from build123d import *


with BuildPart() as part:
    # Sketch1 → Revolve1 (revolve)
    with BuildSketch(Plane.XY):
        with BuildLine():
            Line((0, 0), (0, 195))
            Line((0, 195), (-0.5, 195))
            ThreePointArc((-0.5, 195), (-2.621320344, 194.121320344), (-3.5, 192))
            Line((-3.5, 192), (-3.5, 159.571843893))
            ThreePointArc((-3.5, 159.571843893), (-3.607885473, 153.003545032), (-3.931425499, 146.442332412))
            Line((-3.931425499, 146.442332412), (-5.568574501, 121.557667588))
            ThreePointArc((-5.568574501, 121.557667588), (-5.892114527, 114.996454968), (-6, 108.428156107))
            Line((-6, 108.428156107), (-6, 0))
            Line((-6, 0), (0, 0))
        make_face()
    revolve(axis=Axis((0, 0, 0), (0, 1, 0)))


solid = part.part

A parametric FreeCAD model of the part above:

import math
import FreeCAD as App
import Part
import Sketcher
from FreeCAD import Vector

doc = App.newDocument("Part")
body = doc.addObject("PartDesign::Body", "Body")

# Sketch on XY plane
sketch1 = body.newObject("Sketcher::SketchObject", "Sketch")
sketch1.AttachmentSupport = (doc.getObject("XY_Plane"), [""])
sketch1.MapMode = "FlatFace"
sketch1.addGeometry([
    Part.LineSegment(Vector(0, 0, 0), Vector(0, 195, 0)),  # 0
    Part.LineSegment(Vector(0, 195, 0), Vector(-0.5, 195, 0)),  # 1
    Part.ArcOfCircle(Part.Circle(Vector(-0.5, 192, 0), Vector(0, 0, 1), 3), math.radians(90), math.radians(180)),  # 2
    Part.LineSegment(Vector(-3.5, 192, 0), Vector(-3.5, 159.6, 0)),  # 3
    Part.ArcOfCircle(Part.Circle(Vector(-203.5, 159.6, 0), Vector(0, 0, 1), 200), math.radians(-3.76), math.radians(0)),  # 4
    Part.LineSegment(Vector(-3.9, 146.4, 0), Vector(-5.6, 121.6, 0)),  # 5
    Part.ArcOfCircle(Part.Circle(Vector(194, 108.4, 0), Vector(0, 0, 1), 200), math.radians(176.24), math.radians(180)),  # 6
    Part.LineSegment(Vector(-6, 108.4, 0), Vector(-6, 0, 0)),  # 7
    Part.LineSegment(Vector(-6, 0, 0), Vector(0, 0, 0)),  # 8
], False)
sketch1.addConstraint([
    Sketcher.Constraint("Coincident", 0, 2, 1, 1),
    Sketcher.Constraint("Tangent", 1, 2, 2, 1),
    Sketcher.Constraint("Tangent", 2, 2, 3, 1),
    Sketcher.Constraint("Tangent", 3, 2, 4, 2),
    Sketcher.Constraint("Tangent", 4, 1, 5, 1),
    Sketcher.Constraint("Tangent", 5, 2, 6, 1),
    Sketcher.Constraint("Tangent", 6, 2, 7, 1),
    Sketcher.Constraint("Coincident", 7, 2, 8, 1),
    Sketcher.Constraint("Coincident", 8, 2, 0, 1),
    Sketcher.Constraint("Vertical", 0),
    Sketcher.Constraint("Horizontal", 1),
    Sketcher.Constraint("Vertical", 3),
    Sketcher.Constraint("Vertical", 7),
    Sketcher.Constraint("Horizontal", 8),
    Sketcher.Constraint("Coincident", 8, 2, -1, 1),
    Sketcher.Constraint("Equal", 4, 6),
    Sketcher.Constraint("Radius", 2, 3.0),
    Sketcher.Constraint("Radius", 4, 200.0),
    Sketcher.Constraint("DistanceX", 8, 1, 8, 2, 6.0),
    Sketcher.Constraint("DistanceY", 0, 1, 0, 2, 195.0),
    Sketcher.Constraint("DistanceX", 1, 2, 1, 1, 0.5),
    Sketcher.Constraint("Distance", 5, 24.93846),
    Sketcher.Constraint("DistanceY", 3, 2, 3, 1, 32.428156),
])
revolution = body.newObject("PartDesign::Revolution", "Revolution")
revolution.Profile = sketch1
revolution.ReferenceAxis = (sketch1, ["V_Axis"])
revolution.Angle = 360

doc.recompute()
